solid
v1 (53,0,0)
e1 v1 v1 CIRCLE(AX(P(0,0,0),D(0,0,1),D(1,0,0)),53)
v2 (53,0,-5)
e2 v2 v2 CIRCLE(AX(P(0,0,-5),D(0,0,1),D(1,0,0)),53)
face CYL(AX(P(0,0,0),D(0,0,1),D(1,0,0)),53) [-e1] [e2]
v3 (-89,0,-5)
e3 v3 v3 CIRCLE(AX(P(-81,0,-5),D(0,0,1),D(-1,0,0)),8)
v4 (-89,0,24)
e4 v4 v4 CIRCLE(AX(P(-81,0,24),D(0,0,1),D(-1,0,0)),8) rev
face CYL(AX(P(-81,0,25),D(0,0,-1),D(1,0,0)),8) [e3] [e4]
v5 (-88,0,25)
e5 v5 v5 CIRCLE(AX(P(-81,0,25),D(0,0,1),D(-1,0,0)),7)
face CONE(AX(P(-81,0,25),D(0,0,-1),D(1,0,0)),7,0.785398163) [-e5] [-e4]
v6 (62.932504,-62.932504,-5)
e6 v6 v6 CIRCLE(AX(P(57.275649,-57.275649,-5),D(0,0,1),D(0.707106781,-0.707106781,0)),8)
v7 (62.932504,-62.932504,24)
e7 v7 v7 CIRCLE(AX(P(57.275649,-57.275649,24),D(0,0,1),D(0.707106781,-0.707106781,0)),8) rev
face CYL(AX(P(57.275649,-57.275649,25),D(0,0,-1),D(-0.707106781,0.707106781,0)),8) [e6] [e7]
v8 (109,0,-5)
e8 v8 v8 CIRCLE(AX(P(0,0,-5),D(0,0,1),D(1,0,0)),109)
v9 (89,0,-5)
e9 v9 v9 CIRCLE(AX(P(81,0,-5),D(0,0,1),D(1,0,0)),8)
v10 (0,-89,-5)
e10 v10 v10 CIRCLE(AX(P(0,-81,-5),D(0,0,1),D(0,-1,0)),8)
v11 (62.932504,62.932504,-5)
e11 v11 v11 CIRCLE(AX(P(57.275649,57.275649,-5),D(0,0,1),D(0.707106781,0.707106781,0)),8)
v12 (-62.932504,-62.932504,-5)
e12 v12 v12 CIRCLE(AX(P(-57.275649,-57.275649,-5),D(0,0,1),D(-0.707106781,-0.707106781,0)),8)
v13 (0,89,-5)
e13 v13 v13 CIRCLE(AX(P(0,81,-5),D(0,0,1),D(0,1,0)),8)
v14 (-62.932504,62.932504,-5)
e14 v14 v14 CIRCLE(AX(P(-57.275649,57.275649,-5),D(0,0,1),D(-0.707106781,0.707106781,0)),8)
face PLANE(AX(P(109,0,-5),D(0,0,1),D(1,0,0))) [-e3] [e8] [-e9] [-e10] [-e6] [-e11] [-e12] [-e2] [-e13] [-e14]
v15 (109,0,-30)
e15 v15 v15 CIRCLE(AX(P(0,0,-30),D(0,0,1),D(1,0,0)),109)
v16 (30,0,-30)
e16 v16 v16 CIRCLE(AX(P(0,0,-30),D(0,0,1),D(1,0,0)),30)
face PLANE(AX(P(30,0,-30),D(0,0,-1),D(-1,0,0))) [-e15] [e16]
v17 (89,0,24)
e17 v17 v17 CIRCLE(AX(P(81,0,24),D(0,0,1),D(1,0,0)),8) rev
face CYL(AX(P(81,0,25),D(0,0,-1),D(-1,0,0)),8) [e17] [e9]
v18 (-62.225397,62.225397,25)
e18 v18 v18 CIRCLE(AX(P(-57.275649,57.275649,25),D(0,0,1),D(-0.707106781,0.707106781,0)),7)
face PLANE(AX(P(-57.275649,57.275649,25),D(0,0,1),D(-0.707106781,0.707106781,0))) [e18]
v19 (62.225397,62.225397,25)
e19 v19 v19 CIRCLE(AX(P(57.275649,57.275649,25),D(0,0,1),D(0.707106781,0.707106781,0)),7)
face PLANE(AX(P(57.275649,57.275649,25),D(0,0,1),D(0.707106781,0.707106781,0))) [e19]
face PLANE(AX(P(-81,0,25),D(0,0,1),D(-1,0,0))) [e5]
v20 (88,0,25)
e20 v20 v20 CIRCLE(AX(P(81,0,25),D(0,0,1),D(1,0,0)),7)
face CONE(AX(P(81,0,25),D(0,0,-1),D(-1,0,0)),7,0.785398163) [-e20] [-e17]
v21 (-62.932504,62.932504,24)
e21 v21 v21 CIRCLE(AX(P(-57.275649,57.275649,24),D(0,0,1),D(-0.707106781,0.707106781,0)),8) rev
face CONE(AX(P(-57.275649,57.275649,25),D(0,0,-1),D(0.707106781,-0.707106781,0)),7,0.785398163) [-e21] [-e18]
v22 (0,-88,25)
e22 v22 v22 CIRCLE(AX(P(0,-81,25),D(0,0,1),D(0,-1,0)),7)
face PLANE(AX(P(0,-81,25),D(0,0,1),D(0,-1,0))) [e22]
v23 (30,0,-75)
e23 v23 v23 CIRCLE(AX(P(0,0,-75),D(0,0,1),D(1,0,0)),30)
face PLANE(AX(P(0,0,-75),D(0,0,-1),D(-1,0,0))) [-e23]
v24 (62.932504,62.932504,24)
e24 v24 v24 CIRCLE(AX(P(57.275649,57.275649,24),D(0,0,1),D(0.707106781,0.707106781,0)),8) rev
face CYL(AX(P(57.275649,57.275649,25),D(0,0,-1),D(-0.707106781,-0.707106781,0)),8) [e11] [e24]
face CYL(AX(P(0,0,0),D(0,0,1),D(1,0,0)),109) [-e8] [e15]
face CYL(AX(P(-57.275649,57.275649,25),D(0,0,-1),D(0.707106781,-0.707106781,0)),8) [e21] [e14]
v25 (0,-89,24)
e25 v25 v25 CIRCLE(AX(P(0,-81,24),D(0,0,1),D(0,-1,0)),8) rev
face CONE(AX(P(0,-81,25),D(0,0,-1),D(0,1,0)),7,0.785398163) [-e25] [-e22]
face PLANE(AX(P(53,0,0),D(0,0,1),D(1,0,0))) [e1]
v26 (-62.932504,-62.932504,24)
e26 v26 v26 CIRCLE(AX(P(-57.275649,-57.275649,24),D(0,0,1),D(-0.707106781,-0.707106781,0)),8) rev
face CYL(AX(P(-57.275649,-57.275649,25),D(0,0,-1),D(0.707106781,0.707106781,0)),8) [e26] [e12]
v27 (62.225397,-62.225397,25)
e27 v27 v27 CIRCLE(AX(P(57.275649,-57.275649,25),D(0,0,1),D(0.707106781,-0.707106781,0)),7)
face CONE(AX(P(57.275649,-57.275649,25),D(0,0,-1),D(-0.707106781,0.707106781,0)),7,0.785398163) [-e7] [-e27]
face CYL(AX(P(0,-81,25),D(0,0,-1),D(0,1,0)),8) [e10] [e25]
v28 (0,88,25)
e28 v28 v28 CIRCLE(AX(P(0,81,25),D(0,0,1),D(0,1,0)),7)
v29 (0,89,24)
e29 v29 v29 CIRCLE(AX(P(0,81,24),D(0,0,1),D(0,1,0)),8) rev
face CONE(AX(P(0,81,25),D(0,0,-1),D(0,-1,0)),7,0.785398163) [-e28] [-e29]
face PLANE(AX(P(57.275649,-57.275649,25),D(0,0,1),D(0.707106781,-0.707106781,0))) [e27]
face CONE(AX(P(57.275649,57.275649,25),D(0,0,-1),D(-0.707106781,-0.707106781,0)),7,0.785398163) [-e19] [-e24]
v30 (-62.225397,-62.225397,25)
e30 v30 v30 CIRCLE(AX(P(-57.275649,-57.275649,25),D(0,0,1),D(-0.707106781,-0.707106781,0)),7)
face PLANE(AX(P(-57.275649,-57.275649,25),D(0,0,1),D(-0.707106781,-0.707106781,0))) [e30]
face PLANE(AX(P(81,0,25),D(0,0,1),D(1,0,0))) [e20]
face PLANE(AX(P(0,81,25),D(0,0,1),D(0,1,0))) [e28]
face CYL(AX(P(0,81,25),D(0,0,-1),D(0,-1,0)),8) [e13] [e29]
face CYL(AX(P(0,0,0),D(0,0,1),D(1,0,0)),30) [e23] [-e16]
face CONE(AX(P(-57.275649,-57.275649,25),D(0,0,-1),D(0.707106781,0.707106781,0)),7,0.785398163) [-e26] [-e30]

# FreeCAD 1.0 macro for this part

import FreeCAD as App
import Part
import Sketcher

V = App.Vector


def edges_at(feature, points):
    """Names of the edges that pass closest to the given points."""
    edges = feature.Shape.Edges
    near = lambda p: min(range(len(edges)), key=lambda i: edges[i].distToShape(Part.Vertex(*p))[0])
    return sorted({f"Edge{near(p) + 1}" for p in points})

doc = App.newDocument("Part")
params = doc.addObject("Spreadsheet::Sheet", "Params")
for row, (alias, value) in enumerate([
    ("sketch1_width", "53 mm"),
    ("sketch1_width2", "56 mm"),
    ("sketch1_width3", "79 mm"),
    ("sketch1_height", "75 mm"),
    ("sketch1_height2", "5 mm"),
    ("revolution_angle", "360 deg"),
    ("sketch2_diameter", "16 mm"),
    ("pad1_length", "30 mm"),
    ("chamfer_size", "1 mm"),
    ("chamfer2_size", "1 mm"),
], start=1):
    params.set(f"A{row}", alias)
    params.set(f"B{row}", "=" + value)
    params.setAlias(f"B{row}", alias)

body = doc.addObject("PartDesign::Body", "Body")

# Sketch on XZ plane
sketch1 = body.newObject("Sketcher::SketchObject", "Sketch")
sketch1.AttachmentSupport = (doc.getObject("XZ_Plane"), [""])
sketch1.MapMode = "FlatFace"
sketch1.addGeometry([
    Part.LineSegment(V(0, -75, 0), V(0, 0, 0)),  # 0
    Part.LineSegment(V(0, 0, 0), V(53, 0, 0)),  # 1
    Part.LineSegment(V(53, 0, 0), V(53, -5, 0)),  # 2
    Part.LineSegment(V(53, -5, 0), V(109, -5, 0)),  # 3
    Part.LineSegment(V(109, -5, 0), V(109, -30, 0)),  # 4
    Part.LineSegment(V(109, -30, 0), V(30, -30, 0)),  # 5
    Part.LineSegment(V(30, -30, 0), V(30, -75, 0)),  # 6
    Part.LineSegment(V(30, -75, 0), V(0, -75, 0)),  # 7
], False)
sketch1.addConstraint([
    Sketcher.Constraint("Coincident", 0, 2, 1, 1),
    Sketcher.Constraint("Coincident", 1, 2, 2, 1),
    Sketcher.Constraint("Coincident", 2, 2, 3, 1),
    Sketcher.Constraint("Coincident", 3, 2, 4, 1),
    Sketcher.Constraint("Coincident", 4, 2, 5, 1),
    Sketcher.Constraint("Coincident", 5, 2, 6, 1),
    Sketcher.Constraint("Coincident", 6, 2, 7, 1),
    Sketcher.Constraint("Coincident", 7, 2, 0, 1),
    Sketcher.Constraint("Vertical", 0),
    Sketcher.Constraint("Horizontal", 1),
    Sketcher.Constraint("Vertical", 2),
    Sketcher.Constraint("Horizontal", 3),
    Sketcher.Constraint("Vertical", 4),
    Sketcher.Constraint("Horizontal", 5),
    Sketcher.Constraint("Vertical", 6),
    Sketcher.Constraint("Horizontal", 7),
    Sketcher.Constraint("Coincident", 0, 2, -1, 1),
    Sketcher.Constraint("DistanceX", 1, 1, 1, 2, 53.0),
    Sketcher.Constraint("DistanceX", 3, 1, 3, 2, 56.0),
    Sketcher.Constraint("DistanceX", 5, 2, 5, 1, 79.0),
    Sketcher.Constraint("DistanceY", 0, 1, 0, 2, 75.0),
    Sketcher.Constraint("DistanceY", 2, 2, 2, 1, 5.0),
    Sketcher.Constraint("DistanceY", 4, 2, 4, 1, 25.0),
])
sketch1.setExpression("Constraints[17]", "Params.sketch1_width")
sketch1.setExpression("Constraints[18]", "Params.sketch1_width2")
sketch1.setExpression("Constraints[19]", "Params.sketch1_width3")
sketch1.setExpression("Constraints[20]", "Params.sketch1_height")
sketch1.setExpression("Constraints[21]", "Params.sketch1_height2")
revolution = body.newObject("PartDesign::Revolution", "Revolution")
revolution.Profile = sketch1
revolution.ReferenceAxis = (sketch1, ["V_Axis"])
revolution.setExpression("Angle", "Params.revolution_angle")

# Sketch on XY plane
sketch2 = body.newObject("Sketcher::SketchObject", "Sketch001")
sketch2.AttachmentSupport = (doc.getObject("XY_Plane"), [""])
sketch2.MapMode = "FlatFace"
sketch2.AttachmentOffset = App.Placement(V(0, 0, -5), App.Rotation())
sketch2.addGeometry(Part.Circle(V(81, 0, 0), V(0, 0, 1), 8), False)
sketch2.addConstraint([
    Sketcher.Constraint("PointOnObject", 0, 3, -1),
    Sketcher.Constraint("Diameter", 0, 16.0),
    Sketcher.Constraint("DistanceX", -1, 1, 0, 3, 81.0),
])
sketch2.setExpression("Constraints[1]", "Params.sketch2_diameter")
pad1 = body.newObject("PartDesign::Pad", "Pad")
pad1.Profile = sketch2
pad1.setExpression("Length", "Params.pad1_length")
doc.recompute()

chamfer = body.newObject("PartDesign::Chamfer", "Chamfer")
chamfer.Base = (pad1, edges_at(pad1, [(73, 0, 25)]))
chamfer.setExpression("Size", "Params.chamfer_size")
doc.recompute()

polarpattern = body.newObject("PartDesign::PolarPattern", "PolarPattern")
polarpattern.Originals = [pad1]
polarpattern.Axis = (doc.getObject("Z_Axis"), [""])
polarpattern.Angle = 360
polarpattern.Occurrences = 8
body.Tip = polarpattern
doc.recompute()

chamfer2 = body.newObject("PartDesign::Chamfer", "Chamfer001")
chamfer2.Base = (polarpattern, edges_at(polarpattern, [
    (51.619, 51.619, 25),
    (0, 73, 25),
    (-51.619, 51.619, 25),
    (-73, 0, 25),
    (-51.619, -51.619, 25),
    (0, -73, 25),
    (51.619, -51.619, 25),
]))
chamfer2.setExpression("Size", "Params.chamfer2_size")

doc.recompute()
